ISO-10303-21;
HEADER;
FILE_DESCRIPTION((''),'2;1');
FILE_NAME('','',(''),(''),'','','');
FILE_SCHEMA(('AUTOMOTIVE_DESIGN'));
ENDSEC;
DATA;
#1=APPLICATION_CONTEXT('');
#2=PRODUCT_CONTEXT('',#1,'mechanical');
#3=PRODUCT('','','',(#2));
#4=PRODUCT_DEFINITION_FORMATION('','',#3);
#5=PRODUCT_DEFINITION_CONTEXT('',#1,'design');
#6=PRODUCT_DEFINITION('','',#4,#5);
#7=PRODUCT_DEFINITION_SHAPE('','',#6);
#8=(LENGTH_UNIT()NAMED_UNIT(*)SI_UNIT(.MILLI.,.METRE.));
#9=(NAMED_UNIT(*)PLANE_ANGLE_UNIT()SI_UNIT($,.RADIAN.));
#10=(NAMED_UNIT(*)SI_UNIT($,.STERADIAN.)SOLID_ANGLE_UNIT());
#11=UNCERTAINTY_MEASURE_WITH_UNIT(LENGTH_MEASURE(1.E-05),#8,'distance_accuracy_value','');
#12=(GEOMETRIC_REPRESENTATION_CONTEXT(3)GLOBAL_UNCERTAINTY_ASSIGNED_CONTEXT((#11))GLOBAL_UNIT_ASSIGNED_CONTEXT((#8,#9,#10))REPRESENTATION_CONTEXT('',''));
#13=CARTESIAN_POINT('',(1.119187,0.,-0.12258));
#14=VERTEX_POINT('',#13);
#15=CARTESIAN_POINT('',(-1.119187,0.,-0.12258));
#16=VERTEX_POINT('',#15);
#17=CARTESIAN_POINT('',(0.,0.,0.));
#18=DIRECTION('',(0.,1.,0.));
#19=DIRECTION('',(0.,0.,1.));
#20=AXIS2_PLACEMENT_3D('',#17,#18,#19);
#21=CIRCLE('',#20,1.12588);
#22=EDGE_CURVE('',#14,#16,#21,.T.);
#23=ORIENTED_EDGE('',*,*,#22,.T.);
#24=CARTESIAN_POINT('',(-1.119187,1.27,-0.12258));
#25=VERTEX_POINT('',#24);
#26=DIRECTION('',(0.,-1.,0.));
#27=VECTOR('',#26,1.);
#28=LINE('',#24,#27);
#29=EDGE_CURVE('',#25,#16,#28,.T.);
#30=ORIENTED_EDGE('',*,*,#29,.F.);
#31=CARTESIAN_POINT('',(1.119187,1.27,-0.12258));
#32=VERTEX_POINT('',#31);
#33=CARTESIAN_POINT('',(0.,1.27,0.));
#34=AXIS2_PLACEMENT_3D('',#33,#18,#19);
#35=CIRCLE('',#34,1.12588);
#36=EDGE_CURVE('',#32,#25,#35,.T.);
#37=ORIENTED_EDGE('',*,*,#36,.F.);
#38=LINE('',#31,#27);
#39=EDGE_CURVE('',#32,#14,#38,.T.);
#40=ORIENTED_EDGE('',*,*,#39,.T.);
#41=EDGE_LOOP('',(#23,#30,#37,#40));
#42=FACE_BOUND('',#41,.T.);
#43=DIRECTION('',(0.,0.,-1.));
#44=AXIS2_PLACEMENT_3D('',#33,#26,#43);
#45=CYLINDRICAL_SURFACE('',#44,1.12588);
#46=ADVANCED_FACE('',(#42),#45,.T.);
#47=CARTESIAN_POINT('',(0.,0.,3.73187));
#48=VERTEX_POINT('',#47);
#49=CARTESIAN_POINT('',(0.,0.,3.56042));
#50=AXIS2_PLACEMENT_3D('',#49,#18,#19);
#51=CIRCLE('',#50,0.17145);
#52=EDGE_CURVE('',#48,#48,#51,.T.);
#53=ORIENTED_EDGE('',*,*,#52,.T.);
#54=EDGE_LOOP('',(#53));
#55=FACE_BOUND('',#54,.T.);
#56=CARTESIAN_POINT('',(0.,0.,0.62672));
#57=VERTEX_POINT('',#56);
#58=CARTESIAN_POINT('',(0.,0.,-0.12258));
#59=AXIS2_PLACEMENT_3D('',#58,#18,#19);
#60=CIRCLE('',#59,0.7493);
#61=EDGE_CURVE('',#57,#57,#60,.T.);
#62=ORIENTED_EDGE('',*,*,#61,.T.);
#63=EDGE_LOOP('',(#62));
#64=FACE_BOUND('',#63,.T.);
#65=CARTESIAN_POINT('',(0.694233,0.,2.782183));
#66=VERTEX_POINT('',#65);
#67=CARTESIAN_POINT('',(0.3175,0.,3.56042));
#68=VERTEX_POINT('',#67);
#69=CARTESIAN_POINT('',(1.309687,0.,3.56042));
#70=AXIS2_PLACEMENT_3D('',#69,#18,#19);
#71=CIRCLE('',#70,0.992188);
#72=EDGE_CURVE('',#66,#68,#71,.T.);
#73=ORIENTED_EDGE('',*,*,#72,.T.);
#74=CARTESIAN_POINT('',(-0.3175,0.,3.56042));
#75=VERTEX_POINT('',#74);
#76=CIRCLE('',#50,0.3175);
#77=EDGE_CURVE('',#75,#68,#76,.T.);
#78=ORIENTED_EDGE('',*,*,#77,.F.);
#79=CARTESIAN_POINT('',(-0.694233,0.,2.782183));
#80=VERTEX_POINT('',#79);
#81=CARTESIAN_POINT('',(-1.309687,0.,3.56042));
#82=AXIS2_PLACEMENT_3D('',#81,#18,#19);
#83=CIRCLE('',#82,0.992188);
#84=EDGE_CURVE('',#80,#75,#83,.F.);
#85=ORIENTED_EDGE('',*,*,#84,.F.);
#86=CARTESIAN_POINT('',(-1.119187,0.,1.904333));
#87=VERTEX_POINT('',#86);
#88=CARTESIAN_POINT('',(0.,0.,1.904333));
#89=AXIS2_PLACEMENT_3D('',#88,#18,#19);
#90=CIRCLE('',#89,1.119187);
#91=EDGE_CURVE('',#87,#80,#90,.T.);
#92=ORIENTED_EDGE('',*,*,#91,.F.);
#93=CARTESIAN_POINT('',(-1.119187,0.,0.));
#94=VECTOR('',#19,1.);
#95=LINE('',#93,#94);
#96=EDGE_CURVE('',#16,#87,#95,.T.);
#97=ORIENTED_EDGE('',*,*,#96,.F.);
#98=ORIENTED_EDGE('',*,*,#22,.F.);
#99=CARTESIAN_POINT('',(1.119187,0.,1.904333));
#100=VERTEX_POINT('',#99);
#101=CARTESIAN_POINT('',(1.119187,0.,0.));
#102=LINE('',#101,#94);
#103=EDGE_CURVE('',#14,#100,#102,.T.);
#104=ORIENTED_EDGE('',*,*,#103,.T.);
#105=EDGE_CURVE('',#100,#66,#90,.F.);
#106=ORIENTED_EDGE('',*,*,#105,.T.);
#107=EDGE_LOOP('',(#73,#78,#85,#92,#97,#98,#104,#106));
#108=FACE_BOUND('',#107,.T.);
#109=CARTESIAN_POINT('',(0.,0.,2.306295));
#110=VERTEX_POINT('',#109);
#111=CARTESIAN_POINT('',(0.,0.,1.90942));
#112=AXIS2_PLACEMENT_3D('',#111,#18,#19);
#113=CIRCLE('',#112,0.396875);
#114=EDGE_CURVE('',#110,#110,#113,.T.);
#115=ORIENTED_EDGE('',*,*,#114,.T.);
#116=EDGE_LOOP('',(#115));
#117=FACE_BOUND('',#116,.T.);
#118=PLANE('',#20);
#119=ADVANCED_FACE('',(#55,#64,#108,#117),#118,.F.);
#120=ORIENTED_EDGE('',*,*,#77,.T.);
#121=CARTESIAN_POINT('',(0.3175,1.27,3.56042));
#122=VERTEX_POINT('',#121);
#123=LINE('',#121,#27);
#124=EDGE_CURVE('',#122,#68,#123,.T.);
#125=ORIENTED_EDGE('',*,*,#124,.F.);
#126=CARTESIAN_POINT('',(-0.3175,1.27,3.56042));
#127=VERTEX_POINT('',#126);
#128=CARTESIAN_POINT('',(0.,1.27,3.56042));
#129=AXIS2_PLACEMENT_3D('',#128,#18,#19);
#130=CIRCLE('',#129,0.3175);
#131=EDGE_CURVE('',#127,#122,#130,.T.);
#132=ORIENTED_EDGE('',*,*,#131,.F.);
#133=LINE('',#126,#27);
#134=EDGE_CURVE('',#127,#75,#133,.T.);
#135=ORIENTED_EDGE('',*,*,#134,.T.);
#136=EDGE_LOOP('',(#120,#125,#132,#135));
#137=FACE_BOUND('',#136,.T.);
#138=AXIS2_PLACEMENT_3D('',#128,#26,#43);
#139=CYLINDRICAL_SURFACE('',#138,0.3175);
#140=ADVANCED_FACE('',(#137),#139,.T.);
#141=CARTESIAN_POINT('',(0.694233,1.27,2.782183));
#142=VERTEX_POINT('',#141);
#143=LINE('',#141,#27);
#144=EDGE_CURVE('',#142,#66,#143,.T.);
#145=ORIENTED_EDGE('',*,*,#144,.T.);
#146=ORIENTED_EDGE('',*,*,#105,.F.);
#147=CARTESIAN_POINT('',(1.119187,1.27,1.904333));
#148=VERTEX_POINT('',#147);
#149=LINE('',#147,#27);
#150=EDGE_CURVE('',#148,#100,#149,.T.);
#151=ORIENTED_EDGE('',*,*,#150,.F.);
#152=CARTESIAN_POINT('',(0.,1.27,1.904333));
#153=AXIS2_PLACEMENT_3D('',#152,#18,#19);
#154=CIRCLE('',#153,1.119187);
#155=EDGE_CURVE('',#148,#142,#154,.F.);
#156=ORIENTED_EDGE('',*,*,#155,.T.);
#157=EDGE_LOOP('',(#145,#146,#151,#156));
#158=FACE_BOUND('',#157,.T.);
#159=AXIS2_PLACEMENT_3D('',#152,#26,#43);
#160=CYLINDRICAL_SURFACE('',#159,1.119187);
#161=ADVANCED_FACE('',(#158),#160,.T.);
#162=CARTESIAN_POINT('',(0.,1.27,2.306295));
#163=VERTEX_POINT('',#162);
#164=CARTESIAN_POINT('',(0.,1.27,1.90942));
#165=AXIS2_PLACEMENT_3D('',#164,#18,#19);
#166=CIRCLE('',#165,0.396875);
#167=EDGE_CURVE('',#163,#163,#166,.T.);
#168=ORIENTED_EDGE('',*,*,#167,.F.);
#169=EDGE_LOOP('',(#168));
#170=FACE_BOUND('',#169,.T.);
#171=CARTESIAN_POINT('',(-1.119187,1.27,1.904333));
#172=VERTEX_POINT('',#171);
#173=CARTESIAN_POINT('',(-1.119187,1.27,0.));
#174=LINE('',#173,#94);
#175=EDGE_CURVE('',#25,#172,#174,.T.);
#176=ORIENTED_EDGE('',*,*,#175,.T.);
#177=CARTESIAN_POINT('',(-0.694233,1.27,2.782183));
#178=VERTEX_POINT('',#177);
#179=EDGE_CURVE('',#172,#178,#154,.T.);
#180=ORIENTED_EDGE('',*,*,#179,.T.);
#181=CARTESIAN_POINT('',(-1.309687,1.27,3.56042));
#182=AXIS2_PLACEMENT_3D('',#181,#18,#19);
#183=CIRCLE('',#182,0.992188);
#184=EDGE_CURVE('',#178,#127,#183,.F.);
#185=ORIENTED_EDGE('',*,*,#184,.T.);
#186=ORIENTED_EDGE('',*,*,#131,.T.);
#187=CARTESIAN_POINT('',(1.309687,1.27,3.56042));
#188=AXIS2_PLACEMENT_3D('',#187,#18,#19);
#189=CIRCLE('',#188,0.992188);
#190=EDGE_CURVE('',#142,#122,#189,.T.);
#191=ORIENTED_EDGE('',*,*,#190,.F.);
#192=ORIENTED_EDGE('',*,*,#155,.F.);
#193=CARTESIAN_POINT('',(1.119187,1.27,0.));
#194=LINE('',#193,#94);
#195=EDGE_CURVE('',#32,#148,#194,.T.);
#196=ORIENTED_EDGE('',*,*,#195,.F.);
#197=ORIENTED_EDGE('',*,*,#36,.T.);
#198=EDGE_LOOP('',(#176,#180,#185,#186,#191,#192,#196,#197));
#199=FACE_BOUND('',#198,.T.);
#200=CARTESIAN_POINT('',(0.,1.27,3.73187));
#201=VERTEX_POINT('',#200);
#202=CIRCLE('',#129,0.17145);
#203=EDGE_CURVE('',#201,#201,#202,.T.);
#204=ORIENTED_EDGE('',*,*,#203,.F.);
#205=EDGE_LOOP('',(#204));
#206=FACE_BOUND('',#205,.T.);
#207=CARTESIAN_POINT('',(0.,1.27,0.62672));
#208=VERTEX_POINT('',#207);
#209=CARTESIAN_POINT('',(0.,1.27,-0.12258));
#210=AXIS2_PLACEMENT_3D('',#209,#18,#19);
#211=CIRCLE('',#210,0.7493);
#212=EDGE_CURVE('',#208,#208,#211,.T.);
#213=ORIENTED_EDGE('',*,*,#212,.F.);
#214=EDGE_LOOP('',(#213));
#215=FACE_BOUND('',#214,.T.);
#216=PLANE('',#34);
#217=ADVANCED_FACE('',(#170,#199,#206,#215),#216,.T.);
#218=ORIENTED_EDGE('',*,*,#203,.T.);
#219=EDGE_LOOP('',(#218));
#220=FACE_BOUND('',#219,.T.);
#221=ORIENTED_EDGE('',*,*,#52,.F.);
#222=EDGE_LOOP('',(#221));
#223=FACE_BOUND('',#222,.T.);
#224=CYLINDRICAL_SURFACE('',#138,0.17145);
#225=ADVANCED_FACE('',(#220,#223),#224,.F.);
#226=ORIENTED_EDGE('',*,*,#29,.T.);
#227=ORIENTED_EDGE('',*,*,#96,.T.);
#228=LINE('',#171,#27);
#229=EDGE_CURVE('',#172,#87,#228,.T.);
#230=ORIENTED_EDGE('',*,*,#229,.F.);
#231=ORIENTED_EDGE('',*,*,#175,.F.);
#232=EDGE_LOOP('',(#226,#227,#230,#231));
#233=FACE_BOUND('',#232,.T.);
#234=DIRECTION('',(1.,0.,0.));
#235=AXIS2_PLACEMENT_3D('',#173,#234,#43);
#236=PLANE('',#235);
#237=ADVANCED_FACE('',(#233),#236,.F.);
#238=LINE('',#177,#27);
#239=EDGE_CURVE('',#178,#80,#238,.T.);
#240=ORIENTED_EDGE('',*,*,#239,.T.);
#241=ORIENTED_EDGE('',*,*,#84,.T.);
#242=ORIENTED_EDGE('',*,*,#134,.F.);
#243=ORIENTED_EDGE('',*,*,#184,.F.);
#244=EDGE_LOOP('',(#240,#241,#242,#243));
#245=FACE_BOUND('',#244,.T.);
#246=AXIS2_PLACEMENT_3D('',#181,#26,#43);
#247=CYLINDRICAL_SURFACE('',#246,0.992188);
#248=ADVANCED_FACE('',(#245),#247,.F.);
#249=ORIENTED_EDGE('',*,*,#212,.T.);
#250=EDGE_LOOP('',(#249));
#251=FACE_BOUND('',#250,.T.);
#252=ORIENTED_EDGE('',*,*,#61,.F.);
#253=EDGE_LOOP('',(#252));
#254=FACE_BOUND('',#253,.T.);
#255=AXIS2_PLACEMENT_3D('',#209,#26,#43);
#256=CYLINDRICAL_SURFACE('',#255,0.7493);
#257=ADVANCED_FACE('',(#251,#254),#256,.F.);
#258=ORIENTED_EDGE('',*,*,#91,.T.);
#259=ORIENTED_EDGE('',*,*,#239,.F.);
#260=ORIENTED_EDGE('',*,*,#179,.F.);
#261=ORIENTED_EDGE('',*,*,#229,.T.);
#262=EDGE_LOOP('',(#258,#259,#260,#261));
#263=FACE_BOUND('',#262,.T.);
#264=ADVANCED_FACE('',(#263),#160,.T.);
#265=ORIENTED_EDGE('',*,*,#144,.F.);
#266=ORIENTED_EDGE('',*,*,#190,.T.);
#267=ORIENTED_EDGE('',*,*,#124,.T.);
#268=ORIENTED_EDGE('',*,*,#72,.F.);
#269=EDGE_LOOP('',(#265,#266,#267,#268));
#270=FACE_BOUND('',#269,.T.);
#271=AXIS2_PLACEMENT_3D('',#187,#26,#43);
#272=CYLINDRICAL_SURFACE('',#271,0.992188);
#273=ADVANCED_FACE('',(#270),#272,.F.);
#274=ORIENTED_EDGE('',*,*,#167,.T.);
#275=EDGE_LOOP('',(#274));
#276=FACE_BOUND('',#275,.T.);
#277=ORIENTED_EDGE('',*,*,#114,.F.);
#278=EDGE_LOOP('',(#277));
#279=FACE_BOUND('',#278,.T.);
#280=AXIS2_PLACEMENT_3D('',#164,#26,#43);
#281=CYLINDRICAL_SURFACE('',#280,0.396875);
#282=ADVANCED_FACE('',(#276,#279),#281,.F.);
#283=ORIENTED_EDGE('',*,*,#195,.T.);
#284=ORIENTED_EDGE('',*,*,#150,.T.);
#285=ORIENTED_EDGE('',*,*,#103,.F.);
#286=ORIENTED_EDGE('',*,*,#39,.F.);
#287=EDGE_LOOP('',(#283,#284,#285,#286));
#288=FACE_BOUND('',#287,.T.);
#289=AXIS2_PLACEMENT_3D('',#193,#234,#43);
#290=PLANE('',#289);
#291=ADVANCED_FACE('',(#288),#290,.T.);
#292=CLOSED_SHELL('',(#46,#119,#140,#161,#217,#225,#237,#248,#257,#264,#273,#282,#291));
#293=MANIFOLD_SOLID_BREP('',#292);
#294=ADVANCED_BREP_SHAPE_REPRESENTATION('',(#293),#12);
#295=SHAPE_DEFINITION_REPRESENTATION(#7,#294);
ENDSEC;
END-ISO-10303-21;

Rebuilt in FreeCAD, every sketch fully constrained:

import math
import FreeCAD as App
import Part
import Sketcher

V = App.Vector
Q = App.Units.Quantity

doc = App.newDocument("Part")
body = doc.addObject("PartDesign::Body", "Body")

sketch1 = body.newObject("Sketcher::SketchObject", "Sketch")
sketch1.AttachmentSupport = (doc.getObject("XZ_Plane"), [""])
sketch1.MapMode = "FlatFace"
sketch1.addGeometry(Part.ArcOfCircle(Part.Circle(V(0, 0, 0), V(0, 0, 1), 1.13), math.radians(-174), math.radians(-6)), False)
sketch1.addGeometry(Part.LineSegment(V(-1.12, -0.12, 0), V(-1.12, 1.9, 0)), False)
sketch1.addGeometry(Part.ArcOfCircle(Part.Circle(V(0, 1.9, 0), V(0, 0, 1), 1.12), math.radians(128), math.radians(180)), False)
sketch1.addGeometry(Part.ArcOfCircle(Part.Circle(V(-1.31, 3.56, 0), V(0, 0, 1), 0.99), math.radians(-52), math.radians(0)), False)
sketch1.addGeometry(Part.ArcOfCircle(Part.Circle(V(0, 3.56, 0), V(0, 0, 1), 0.32), math.radians(0), math.radians(180)), False)
sketch1.addGeometry(Part.ArcOfCircle(Part.Circle(V(1.31, 3.56, 0), V(0, 0, 1), 0.99), math.radians(180), math.radians(232)), False)
sketch1.addGeometry(Part.ArcOfCircle(Part.Circle(V(0, 1.9, 0), V(0, 0, 1), 1.12), math.radians(0), math.radians(52)), False)
sketch1.addGeometry(Part.LineSegment(V(1.12, 1.9, 0), V(1.12, -0.12, 0)), False)
sketch1.addGeometry(Part.Circle(V(0, 1.91, 0), V(0, 0, 1), 0.4), False)
sketch1.addGeometry(Part.Circle(V(0, -0.12, 0), V(0, 0, 1), 0.75), False)
sketch1.addGeometry(Part.Circle(V(0, 3.56, 0), V(0, 0, 1), 0.17), False)
sketch1.addConstraint(Sketcher.Constraint("Coincident", 0, 1, 1, 1))
sketch1.addConstraint(Sketcher.Constraint("Tangent", 1, 2, 2, 2))
sketch1.addConstraint(Sketcher.Constraint("Tangent", 2, 1, 3, 1))
sketch1.addConstraint(Sketcher.Constraint("Tangent", 3, 2, 4, 2))
sketch1.addConstraint(Sketcher.Constraint("Tangent", 4, 1, 5, 1))
sketch1.addConstraint(Sketcher.Constraint("Tangent", 5, 2, 6, 2))
sketch1.addConstraint(Sketcher.Constraint("Tangent", 6, 1, 7, 1))
sketch1.addConstraint(Sketcher.Constraint("Coincident", 7, 2, 0, 2))
sketch1.addConstraint(Sketcher.Constraint("Vertical", 1))
sketch1.addConstraint(Sketcher.Constraint("Vertical", 7))
sketch1.addConstraint(Sketcher.Constraint("Coincident", 0, 3, -1, 1))
sketch1.addConstraint(Sketcher.Constraint("Coincident", 6, 3, 2, 3))
sketch1.addConstraint(Sketcher.Constraint("Coincident", 10, 3, 4, 3))
sketch1.addConstraint(Sketcher.Constraint("Equal", 3, 5))
sketch1.addConstraint(Sketcher.Constraint("Equal", 2, 6))
sketch1.addConstraint(Sketcher.Constraint("Symmetric", 3, 3, 5, 3, -2))
sketch1.addConstraint(Sketcher.Constraint("PointOnObject", 8, 3, -2))
sketch1.addConstraint(Sketcher.Constraint("PointOnObject", 9, 3, -2))
sketch1.addConstraint(Sketcher.Constraint("Horizontal", 3, 3, 4, 3))
sketch1.addConstraint(Sketcher.Constraint("Horizontal", 9, 3, 0, 1))
sketch1.addConstraint(Sketcher.Constraint("Diameter", 8, Q("0.03125 in")))
sketch1.addConstraint(Sketcher.Constraint("Diameter", 9, Q("0.059 in")))
sketch1.addConstraint(Sketcher.Constraint("Diameter", 10, Q("0.0135 in")))
sketch1.addConstraint(Sketcher.Constraint("Radius", 4, Q("0.0125 in")))
sketch1.addConstraint(Sketcher.Constraint("DistanceY", 9, 3, 8, 3, Q("0.08 in")))
sketch1.addConstraint(Sketcher.Constraint("Radius", 0, Q("1.12588 mm")))
sketch1.addConstraint(Sketcher.Constraint("DistanceY", 8, 3, 4, 3, Q("0.065 in")))
sketch1.addConstraint(Sketcher.Constraint("Radius", 2, Q("1.119187 mm")))
sketch1.addConstraint(Sketcher.Constraint("Radius", 3, Q("0.992187 mm")))
pad1 = body.newObject("PartDesign::Pad", "Pad")
pad1.Profile = sketch1
pad1.Length = Q("0.05 in")
pad1.Reversed = True

doc.recompute()
